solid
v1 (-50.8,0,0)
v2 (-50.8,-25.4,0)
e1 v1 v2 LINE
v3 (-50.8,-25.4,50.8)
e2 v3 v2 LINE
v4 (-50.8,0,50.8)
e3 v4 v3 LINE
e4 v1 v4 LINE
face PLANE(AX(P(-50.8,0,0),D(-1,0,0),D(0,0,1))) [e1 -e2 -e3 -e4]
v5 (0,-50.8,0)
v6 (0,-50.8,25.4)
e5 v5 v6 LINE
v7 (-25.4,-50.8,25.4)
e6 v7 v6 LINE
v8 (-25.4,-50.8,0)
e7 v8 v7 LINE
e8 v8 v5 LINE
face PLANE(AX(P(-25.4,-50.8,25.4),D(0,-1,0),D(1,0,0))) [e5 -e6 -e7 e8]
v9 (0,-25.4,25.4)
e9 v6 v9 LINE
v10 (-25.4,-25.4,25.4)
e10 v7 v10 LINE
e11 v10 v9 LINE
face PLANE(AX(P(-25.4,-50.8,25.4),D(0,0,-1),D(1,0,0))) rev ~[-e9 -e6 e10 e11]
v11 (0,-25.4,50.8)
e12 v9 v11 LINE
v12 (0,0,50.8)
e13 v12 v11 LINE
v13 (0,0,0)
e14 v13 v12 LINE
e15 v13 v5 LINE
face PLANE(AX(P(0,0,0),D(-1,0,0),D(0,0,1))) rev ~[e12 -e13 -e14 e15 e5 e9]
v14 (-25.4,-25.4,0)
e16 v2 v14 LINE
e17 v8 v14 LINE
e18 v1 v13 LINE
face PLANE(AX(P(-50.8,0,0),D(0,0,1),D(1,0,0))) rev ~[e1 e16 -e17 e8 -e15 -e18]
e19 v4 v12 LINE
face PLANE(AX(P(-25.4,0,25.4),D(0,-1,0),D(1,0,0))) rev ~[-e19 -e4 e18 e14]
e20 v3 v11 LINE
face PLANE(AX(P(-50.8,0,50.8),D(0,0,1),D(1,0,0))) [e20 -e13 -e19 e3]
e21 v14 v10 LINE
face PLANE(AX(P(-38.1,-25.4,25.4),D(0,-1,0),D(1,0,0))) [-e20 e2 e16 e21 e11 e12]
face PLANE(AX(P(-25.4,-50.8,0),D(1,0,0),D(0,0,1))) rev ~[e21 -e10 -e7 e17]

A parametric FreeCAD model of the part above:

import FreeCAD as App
import Part
import Sketcher
Q = App.Units.Quantity

doc = App.newDocument("Part")
body = doc.addObject("PartDesign::Body", "Body")

# Sketch on XZ plane
sketch1 = body.newObject("Sketcher::SketchObject", "Sketch")
sketch1.AttachmentSupport = (doc.getObject("XZ_Plane"), [""])
sketch1.MapMode = "FlatFace"
sketch1.addGeometry(Part.LineSegment(App.Vector(-51, 51, 0), App.Vector(-51, 0, 0)), False)
sketch1.addGeometry(Part.LineSegment(App.Vector(-51, 0, 0), App.Vector(0, 0, 0)), False)
sketch1.addGeometry(Part.LineSegment(App.Vector(0, 0, 0), App.Vector(0, 51, 0)), False)
sketch1.addGeometry(Part.LineSegment(App.Vector(0, 51, 0), App.Vector(-51, 51, 0)), False)
sketch1.addConstraint(Sketcher.Constraint("Coincident", 0, 2, 1, 1))
sketch1.addConstraint(Sketcher.Constraint("Coincident", 1, 2, 2, 1))
sketch1.addConstraint(Sketcher.Constraint("Coincident", 2, 2, 3, 1))
sketch1.addConstraint(Sketcher.Constraint("Coincident", 3, 2, 0, 1))
sketch1.addConstraint(Sketcher.Constraint("Vertical", 0))
sketch1.addConstraint(Sketcher.Constraint("Horizontal", 1))
sketch1.addConstraint(Sketcher.Constraint("Vertical", 2))
sketch1.addConstraint(Sketcher.Constraint("Horizontal", 3))
sketch1.addConstraint(Sketcher.Constraint("Coincident", 1, 2, -1, 1))
sketch1.addConstraint(Sketcher.Constraint("Equal", 3, 0))
sketch1.addConstraint(Sketcher.Constraint("DistanceX", 1, 1, 1, 2, Q("2 in")))
pad1 = body.newObject("PartDesign::Pad", "Pad")
pad1.Profile = sketch1
pad1.Length = Q("2 in")

# Sketch on XZ plane
sketch2 = body.newObject("Sketcher::SketchObject", "Sketch001")
sketch2.AttachmentSupport = (doc.getObject("XZ_Plane"), [""])
sketch2.MapMode = "FlatFace"
sketch2.AttachmentOffset = App.Placement(App.Vector(0, 0, 2 * 25.4), App.Rotation())
sketch2.addGeometry(Part.LineSegment(App.Vector(-25, 51, 0), App.Vector(-51, 51, 0)), False)
sketch2.addGeometry(Part.LineSegment(App.Vector(-51, 51, 0), App.Vector(-51, 0, 0)), False)
sketch2.addGeometry(Part.LineSegment(App.Vector(-51, 0, 0), App.Vector(-25, 0, 0)), False)
sketch2.addGeometry(Part.LineSegment(App.Vector(-25, 0, 0), App.Vector(-25, 51, 0)), False)
sketch2.addConstraint(Sketcher.Constraint("Coincident", 0, 2, 1, 1))
sketch2.addConstraint(Sketcher.Constraint("Coincident", 1, 2, 2, 1))
sketch2.addConstraint(Sketcher.Constraint("Coincident", 2, 2, 3, 1))
sketch2.addConstraint(Sketcher.Constraint("Coincident", 3, 2, 0, 1))
sketch2.addConstraint(Sketcher.Constraint("Horizontal", 0))
sketch2.addConstraint(Sketcher.Constraint("Vertical", 1))
sketch2.addConstraint(Sketcher.Constraint("Horizontal", 2))
sketch2.addConstraint(Sketcher.Constraint("Vertical", 3))
sketch2.addConstraint(Sketcher.Constraint("PointOnObject", 1, 2, -1))
sketch2.addConstraint(Sketcher.Constraint("DistanceX", 0, 2, 0, 1, Q("1 in")))
sketch2.addConstraint(Sketcher.Constraint("DistanceY", 1, 2, 1, 1, Q("2 in")))
sketch2.addConstraint(Sketcher.Constraint("DistanceX", 0, 2, -1, 1, Q("2 in")))
pocket1 = body.newObject("PartDesign::Pocket", "Pocket")
pocket1.Profile = sketch2
pocket1.Length = Q("1 in")

# Sketch on XZ plane
sketch3 = body.newObject("Sketcher::SketchObject", "Sketch002")
sketch3.AttachmentSupport = (doc.getObject("XZ_Plane"), [""])
sketch3.MapMode = "FlatFace"
sketch3.AttachmentOffset = App.Placement(App.Vector(0, 0, 2 * 25.4), App.Rotation())
sketch3.addGeometry(Part.LineSegment(App.Vector(-25, 51, 0), App.Vector(-25, 25, 0)), False)
sketch3.addGeometry(Part.LineSegment(App.Vector(-25, 25, 0), App.Vector(0, 25, 0)), False)
sketch3.addGeometry(Part.LineSegment(App.Vector(0, 25, 0), App.Vector(0, 51, 0)), False)
sketch3.addGeometry(Part.LineSegment(App.Vector(0, 51, 0), App.Vector(-25, 51, 0)), False)
sketch3.addConstraint(Sketcher.Constraint("Coincident", 0, 2, 1, 1))
sketch3.addConstraint(Sketcher.Constraint("Coincident", 1, 2, 2, 1))
sketch3.addConstraint(Sketcher.Constraint("Coincident", 2, 2, 3, 1))
sketch3.addConstraint(Sketcher.Constraint("Coincident", 3, 2, 0, 1))
sketch3.addConstraint(Sketcher.Constraint("Vertical", 0))
sketch3.addConstraint(Sketcher.Constraint("Horizontal", 1))
sketch3.addConstraint(Sketcher.Constraint("Vertical", 2))
sketch3.addConstraint(Sketcher.Constraint("Horizontal", 3))
sketch3.addConstraint(Sketcher.Constraint("PointOnObject", 1, 2, -2))
sketch3.addConstraint(Sketcher.Constraint("Equal", 3, 0))
sketch3.addConstraint(Sketcher.Constraint("DistanceX", 1, 1, 1, 2, Q("1 in")))
sketch3.addConstraint(Sketcher.Constraint("DistanceY", -1, 1, 0, 2, Q("1 in")))
pocket2 = body.newObject("PartDesign::Pocket", "Pocket001")
pocket2.Profile = sketch3
pocket2.Length = Q("1 in")

doc.recompute()
